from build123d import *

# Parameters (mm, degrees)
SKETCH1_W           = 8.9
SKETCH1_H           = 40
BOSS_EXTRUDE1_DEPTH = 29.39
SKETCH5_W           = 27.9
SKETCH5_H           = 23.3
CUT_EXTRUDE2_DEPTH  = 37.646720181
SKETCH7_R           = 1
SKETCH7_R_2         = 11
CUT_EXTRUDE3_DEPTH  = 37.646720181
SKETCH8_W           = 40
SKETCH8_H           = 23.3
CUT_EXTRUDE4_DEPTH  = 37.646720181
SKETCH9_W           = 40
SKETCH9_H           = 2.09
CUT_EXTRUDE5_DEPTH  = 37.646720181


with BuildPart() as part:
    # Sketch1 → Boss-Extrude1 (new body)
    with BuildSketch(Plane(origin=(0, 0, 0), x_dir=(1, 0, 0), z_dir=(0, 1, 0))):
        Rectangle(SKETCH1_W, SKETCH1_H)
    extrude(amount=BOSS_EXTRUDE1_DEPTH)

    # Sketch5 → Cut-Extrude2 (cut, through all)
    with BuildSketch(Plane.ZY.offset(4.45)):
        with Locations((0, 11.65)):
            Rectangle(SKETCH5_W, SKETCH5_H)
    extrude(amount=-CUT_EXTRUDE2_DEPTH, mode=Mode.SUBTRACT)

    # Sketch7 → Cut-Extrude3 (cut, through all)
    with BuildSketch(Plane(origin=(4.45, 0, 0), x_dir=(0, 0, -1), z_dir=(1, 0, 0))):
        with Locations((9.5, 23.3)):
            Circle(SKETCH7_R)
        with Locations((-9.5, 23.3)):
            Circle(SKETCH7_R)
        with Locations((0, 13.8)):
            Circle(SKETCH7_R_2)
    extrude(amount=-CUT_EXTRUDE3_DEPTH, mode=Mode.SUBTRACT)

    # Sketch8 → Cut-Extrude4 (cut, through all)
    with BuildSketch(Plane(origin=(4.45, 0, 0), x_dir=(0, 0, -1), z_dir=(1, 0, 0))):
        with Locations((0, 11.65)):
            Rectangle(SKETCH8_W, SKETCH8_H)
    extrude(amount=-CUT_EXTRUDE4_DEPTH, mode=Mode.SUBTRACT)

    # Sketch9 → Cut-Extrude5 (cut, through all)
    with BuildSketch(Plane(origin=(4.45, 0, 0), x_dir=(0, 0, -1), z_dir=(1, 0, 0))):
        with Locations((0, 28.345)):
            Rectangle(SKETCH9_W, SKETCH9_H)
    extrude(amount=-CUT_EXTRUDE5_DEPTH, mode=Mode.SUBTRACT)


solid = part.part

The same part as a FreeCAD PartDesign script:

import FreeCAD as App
import Part
import Sketcher

V = App.Vector
Q = App.Units.Quantity

doc = App.newDocument("Part")
params = doc.addObject("Spreadsheet::Sheet", "Params")
for row, (alias, value) in enumerate([
    ("sketch1_height", "40 mm"),
    ("sketch1_width", "8.9 mm"),
    ("pad1_length", "29.39 mm"),
    ("sketch2_width", "23.3 mm"),
    ("sketch2_height", "27.9 mm"),
    ("sketch3_diameter", "2 mm"),
    ("sketch3_diameter2", "22 mm"),
    ("sketch4_height", "40 mm"),
    ("sketch4_width", "23.3 mm"),
    ("sketch5_height", "40 mm"),
    ("sketch5_width", "2.09 mm"),
], start=1):
    params.set(f"A{row}", alias)
    params.set(f"B{row}", "=" + value)
    params.setAlias(f"B{row}", alias)

body = doc.addObject("PartDesign::Body", "Body")

# Sketch on XZ plane
sketch1 = body.newObject("Sketcher::SketchObject", "Sketch")
sketch1.AttachmentSupport = (doc.getObject("XZ_Plane"), [""])
sketch1.MapMode = "FlatFace"
sketch1.addGeometry(Part.LineSegment(V(-4.45, -20, 0), V(-4.45, 20, 0)), False)
sketch1.addGeometry(Part.LineSegment(V(-4.45, 20, 0), V(4.45, 20, 0)), False)
sketch1.addGeometry(Part.LineSegment(V(4.45, 20, 0), V(4.45, -20, 0)), False)
sketch1.addGeometry(Part.LineSegment(V(4.45, -20, 0), V(-4.45, -20, 0)), False)
sketch1.addConstraint(Sketcher.Constraint("Coincident", 0, 2, 1, 1))
sketch1.addConstraint(Sketcher.Constraint("Coincident", 1, 2, 2, 1))
sketch1.addConstraint(Sketcher.Constraint("Coincident", 2, 2, 3, 1))
sketch1.addConstraint(Sketcher.Constraint("Coincident", 3, 2, 0, 1))
sketch1.addConstraint(Sketcher.Constraint("Vertical", 0))
sketch1.addConstraint(Sketcher.Constraint("Horizontal", 1))
sketch1.addConstraint(Sketcher.Constraint("Vertical", 2))
sketch1.addConstraint(Sketcher.Constraint("Horizontal", 3))
sketch1.addConstraint(Sketcher.Constraint("Symmetric", 0, 2, 2, 2, -1, 1))
sketch1.addConstraint(Sketcher.Constraint("DistanceY", 0, 1, 0, 2, Q("40 mm")))
sketch1.addConstraint(Sketcher.Constraint("DistanceX", 1, 1, 1, 2, Q("8.9 mm")))
sketch1.setExpression("Constraints[9]", "Params.sketch1_height")
sketch1.setExpression("Constraints[10]", "Params.sketch1_width")
pad1 = body.newObject("PartDesign::Pad", "Pad")
pad1.Profile = sketch1
pad1.setExpression("Length", "Params.pad1_length")
pad1.Reversed = True

# Sketch on YZ plane
sketch2 = body.newObject("Sketcher::SketchObject", "Sketch001")
sketch2.AttachmentSupport = (doc.getObject("YZ_Plane"), [""])
sketch2.MapMode = "FlatFace"
sketch2.AttachmentOffset = App.Placement(V(0, 0, -4.45), App.Rotation())
sketch2.addGeometry(Part.LineSegment(V(23.3, -13.95, 0), V(0, -13.95, 0)), False)
sketch2.addGeometry(Part.LineSegment(V(0, -13.95, 0), V(0, 13.95, 0)), False)
sketch2.addGeometry(Part.LineSegment(V(0, 13.95, 0), V(23.3, 13.95, 0)), False)
sketch2.addGeometry(Part.LineSegment(V(23.3, 13.95, 0), V(23.3, -13.95, 0)), False)
sketch2.addConstraint(Sketcher.Constraint("Coincident", 0, 2, 1, 1))
sketch2.addConstraint(Sketcher.Constraint("Coincident", 1, 2, 2, 1))
sketch2.addConstraint(Sketcher.Constraint("Coincident", 2, 2, 3, 1))
sketch2.addConstraint(Sketcher.Constraint("Coincident", 3, 2, 0, 1))
sketch2.addConstraint(Sketcher.Constraint("Horizontal", 0))
sketch2.addConstraint(Sketcher.Constraint("Vertical", 1))
sketch2.addConstraint(Sketcher.Constraint("Horizontal", 2))
sketch2.addConstraint(Sketcher.Constraint("Vertical", 3))
sketch2.addConstraint(Sketcher.Constraint("Symmetric", 0, 2, 1, 2, -1, 1))
sketch2.addConstraint(Sketcher.Constraint("DistanceX", 0, 2, 0, 1, Q("23.3 mm")))
sketch2.addConstraint(Sketcher.Constraint("DistanceY", 1, 1, 1, 2, Q("27.9 mm")))
sketch2.setExpression("Constraints[9]", "Params.sketch2_width")
sketch2.setExpression("Constraints[10]", "Params.sketch2_height")
pocket1 = body.newObject("PartDesign::Pocket", "Pocket")
pocket1.Profile = sketch2
pocket1.Type = "ThroughAll"
pocket1.Reversed = True

# Sketch on YZ plane
sketch3 = body.newObject("Sketcher::SketchObject", "Sketch002")
sketch3.AttachmentSupport = (doc.getObject("YZ_Plane"), [""])
sketch3.MapMode = "FlatFace"
sketch3.AttachmentOffset = App.Placement(V(0, 0, 4.45), App.Rotation())
sketch3.addGeometry(Part.Circle(V(23.3, -9.5, 0), V(0, 0, 1), 1), False)
sketch3.addGeometry(Part.Circle(V(23.3, 9.5, 0), V(0, 0, 1), 1), False)
sketch3.addGeometry(Part.Circle(V(13.8, 0, 0), V(0, 0, 1), 11), False)
sketch3.addConstraint(Sketcher.Constraint("Equal", 0, 1))
sketch3.addConstraint(Sketcher.Constraint("Symmetric", 0, 3, 1, 3, -1))
sketch3.addConstraint(Sketcher.Constraint("PointOnObject", 2, 3, -1))
sketch3.addConstraint(Sketcher.Constraint("Diameter", 0, Q("2 mm")))
sketch3.addConstraint(Sketcher.Constraint("Diameter", 2, Q("22 mm")))
sketch3.addConstraint(Sketcher.Constraint("DistanceY", 0, 3, 1, 3, Q("19 mm")))
sketch3.addConstraint(Sketcher.Constraint("DistanceX", -1, 1, 0, 3, Q("23.3 mm")))
sketch3.addConstraint(Sketcher.Constraint("DistanceX", -1, 1, 2, 3, Q("13.8 mm")))
sketch3.setExpression("Constraints[3]", "Params.sketch3_diameter")
sketch3.setExpression("Constraints[4]", "Params.sketch3_diameter2")
pocket2 = body.newObject("PartDesign::Pocket", "Pocket001")
pocket2.Profile = sketch3
pocket2.Type = "ThroughAll"

# Sketch on YZ plane
sketch4 = body.newObject("Sketcher::SketchObject", "Sketch003")
sketch4.AttachmentSupport = (doc.getObject("YZ_Plane"), [""])
sketch4.MapMode = "FlatFace"
sketch4.AttachmentOffset = App.Placement(V(0, 0, 4.45), App.Rotation())
sketch4.addGeometry(Part.LineSegment(V(23.3, 20, 0), V(0, 20, 0)), False)
sketch4.addGeometry(Part.LineSegment(V(0, 20, 0), V(0, -20, 0)), False)
sketch4.addGeometry(Part.LineSegment(V(0, -20, 0), V(23.3, -20, 0)), False)
sketch4.addGeometry(Part.LineSegment(V(23.3, -20, 0), V(23.3, 20, 0)), False)
sketch4.addConstraint(Sketcher.Constraint("Coincident", 0, 2, 1, 1))
sketch4.addConstraint(Sketcher.Constraint("Coincident", 1, 2, 2, 1))
sketch4.addConstraint(Sketcher.Constraint("Coincident", 2, 2, 3, 1))
sketch4.addConstraint(Sketcher.Constraint("Coincident", 3, 2, 0, 1))
sketch4.addConstraint(Sketcher.Constraint("Horizontal", 0))
sketch4.addConstraint(Sketcher.Constraint("Vertical", 1))
sketch4.addConstraint(Sketcher.Constraint("Horizontal", 2))
sketch4.addConstraint(Sketcher.Constraint("Vertical", 3))
sketch4.addConstraint(Sketcher.Constraint("Symmetric", 0, 2, 1, 2, -1, 1))
sketch4.addConstraint(Sketcher.Constraint("DistanceY", 1, 2, 1, 1, Q("40 mm")))
sketch4.addConstraint(Sketcher.Constraint("DistanceX", 0, 2, 0, 1, Q("23.3 mm")))
sketch4.setExpression("Constraints[9]", "Params.sketch4_height")
sketch4.setExpression("Constraints[10]", "Params.sketch4_width")
pocket3 = body.newObject("PartDesign::Pocket", "Pocket002")
pocket3.Profile = sketch4
pocket3.Type = "ThroughAll"

# Sketch on YZ plane
sketch5 = body.newObject("Sketcher::SketchObject", "Sketch004")
sketch5.AttachmentSupport = (doc.getObject("YZ_Plane"), [""])
sketch5.MapMode = "FlatFace"
sketch5.AttachmentOffset = App.Placement(V(0, 0, 4.45), App.Rotation())
sketch5.addGeometry(Part.LineSegment(V(29.39, 20, 0), V(27.3, 20, 0)), False)
sketch5.addGeometry(Part.LineSegment(V(27.3, 20, 0), V(27.3, -20, 0)), False)
sketch5.addGeometry(Part.LineSegment(V(27.3, -20, 0), V(29.39, -20, 0)), False)
sketch5.addGeometry(Part.LineSegment(V(29.39, -20, 0), V(29.39, 20, 0)), False)
sketch5.addConstraint(Sketcher.Constraint("Coincident", 0, 2, 1, 1))
sketch5.addConstraint(Sketcher.Constraint("Coincident", 1, 2, 2, 1))
sketch5.addConstraint(Sketcher.Constraint("Coincident", 2, 2, 3, 1))
sketch5.addConstraint(Sketcher.Constraint("Coincident", 3, 2, 0, 1))
sketch5.addConstraint(Sketcher.Constraint("Horizontal", 0))
sketch5.addConstraint(Sketcher.Constraint("Vertical", 1))
sketch5.addConstraint(Sketcher.Constraint("Horizontal", 2))
sketch5.addConstraint(Sketcher.Constraint("Vertical", 3))
sketch5.addConstraint(Sketcher.Constraint("DistanceY", 1, 2, 1, 1, Q("40 mm")))
sketch5.addConstraint(Sketcher.Constraint("DistanceY", -1, 1, 0, 2, Q("20 mm")))
sketch5.addConstraint(Sketcher.Constraint("DistanceX", 0, 2, 0, 1, Q("2.09 mm")))
sketch5.addConstraint(Sketcher.Constraint("DistanceX", -1, 1, 0, 2, Q("27.3 mm")))
sketch5.setExpression("Constraints[8]", "Params.sketch5_height")
sketch5.setExpression("Constraints[10]", "Params.sketch5_width")
pocket4 = body.newObject("PartDesign::Pocket", "Pocket003")
pocket4.Profile = sketch5
pocket4.Type = "ThroughAll"

doc.recompute()
